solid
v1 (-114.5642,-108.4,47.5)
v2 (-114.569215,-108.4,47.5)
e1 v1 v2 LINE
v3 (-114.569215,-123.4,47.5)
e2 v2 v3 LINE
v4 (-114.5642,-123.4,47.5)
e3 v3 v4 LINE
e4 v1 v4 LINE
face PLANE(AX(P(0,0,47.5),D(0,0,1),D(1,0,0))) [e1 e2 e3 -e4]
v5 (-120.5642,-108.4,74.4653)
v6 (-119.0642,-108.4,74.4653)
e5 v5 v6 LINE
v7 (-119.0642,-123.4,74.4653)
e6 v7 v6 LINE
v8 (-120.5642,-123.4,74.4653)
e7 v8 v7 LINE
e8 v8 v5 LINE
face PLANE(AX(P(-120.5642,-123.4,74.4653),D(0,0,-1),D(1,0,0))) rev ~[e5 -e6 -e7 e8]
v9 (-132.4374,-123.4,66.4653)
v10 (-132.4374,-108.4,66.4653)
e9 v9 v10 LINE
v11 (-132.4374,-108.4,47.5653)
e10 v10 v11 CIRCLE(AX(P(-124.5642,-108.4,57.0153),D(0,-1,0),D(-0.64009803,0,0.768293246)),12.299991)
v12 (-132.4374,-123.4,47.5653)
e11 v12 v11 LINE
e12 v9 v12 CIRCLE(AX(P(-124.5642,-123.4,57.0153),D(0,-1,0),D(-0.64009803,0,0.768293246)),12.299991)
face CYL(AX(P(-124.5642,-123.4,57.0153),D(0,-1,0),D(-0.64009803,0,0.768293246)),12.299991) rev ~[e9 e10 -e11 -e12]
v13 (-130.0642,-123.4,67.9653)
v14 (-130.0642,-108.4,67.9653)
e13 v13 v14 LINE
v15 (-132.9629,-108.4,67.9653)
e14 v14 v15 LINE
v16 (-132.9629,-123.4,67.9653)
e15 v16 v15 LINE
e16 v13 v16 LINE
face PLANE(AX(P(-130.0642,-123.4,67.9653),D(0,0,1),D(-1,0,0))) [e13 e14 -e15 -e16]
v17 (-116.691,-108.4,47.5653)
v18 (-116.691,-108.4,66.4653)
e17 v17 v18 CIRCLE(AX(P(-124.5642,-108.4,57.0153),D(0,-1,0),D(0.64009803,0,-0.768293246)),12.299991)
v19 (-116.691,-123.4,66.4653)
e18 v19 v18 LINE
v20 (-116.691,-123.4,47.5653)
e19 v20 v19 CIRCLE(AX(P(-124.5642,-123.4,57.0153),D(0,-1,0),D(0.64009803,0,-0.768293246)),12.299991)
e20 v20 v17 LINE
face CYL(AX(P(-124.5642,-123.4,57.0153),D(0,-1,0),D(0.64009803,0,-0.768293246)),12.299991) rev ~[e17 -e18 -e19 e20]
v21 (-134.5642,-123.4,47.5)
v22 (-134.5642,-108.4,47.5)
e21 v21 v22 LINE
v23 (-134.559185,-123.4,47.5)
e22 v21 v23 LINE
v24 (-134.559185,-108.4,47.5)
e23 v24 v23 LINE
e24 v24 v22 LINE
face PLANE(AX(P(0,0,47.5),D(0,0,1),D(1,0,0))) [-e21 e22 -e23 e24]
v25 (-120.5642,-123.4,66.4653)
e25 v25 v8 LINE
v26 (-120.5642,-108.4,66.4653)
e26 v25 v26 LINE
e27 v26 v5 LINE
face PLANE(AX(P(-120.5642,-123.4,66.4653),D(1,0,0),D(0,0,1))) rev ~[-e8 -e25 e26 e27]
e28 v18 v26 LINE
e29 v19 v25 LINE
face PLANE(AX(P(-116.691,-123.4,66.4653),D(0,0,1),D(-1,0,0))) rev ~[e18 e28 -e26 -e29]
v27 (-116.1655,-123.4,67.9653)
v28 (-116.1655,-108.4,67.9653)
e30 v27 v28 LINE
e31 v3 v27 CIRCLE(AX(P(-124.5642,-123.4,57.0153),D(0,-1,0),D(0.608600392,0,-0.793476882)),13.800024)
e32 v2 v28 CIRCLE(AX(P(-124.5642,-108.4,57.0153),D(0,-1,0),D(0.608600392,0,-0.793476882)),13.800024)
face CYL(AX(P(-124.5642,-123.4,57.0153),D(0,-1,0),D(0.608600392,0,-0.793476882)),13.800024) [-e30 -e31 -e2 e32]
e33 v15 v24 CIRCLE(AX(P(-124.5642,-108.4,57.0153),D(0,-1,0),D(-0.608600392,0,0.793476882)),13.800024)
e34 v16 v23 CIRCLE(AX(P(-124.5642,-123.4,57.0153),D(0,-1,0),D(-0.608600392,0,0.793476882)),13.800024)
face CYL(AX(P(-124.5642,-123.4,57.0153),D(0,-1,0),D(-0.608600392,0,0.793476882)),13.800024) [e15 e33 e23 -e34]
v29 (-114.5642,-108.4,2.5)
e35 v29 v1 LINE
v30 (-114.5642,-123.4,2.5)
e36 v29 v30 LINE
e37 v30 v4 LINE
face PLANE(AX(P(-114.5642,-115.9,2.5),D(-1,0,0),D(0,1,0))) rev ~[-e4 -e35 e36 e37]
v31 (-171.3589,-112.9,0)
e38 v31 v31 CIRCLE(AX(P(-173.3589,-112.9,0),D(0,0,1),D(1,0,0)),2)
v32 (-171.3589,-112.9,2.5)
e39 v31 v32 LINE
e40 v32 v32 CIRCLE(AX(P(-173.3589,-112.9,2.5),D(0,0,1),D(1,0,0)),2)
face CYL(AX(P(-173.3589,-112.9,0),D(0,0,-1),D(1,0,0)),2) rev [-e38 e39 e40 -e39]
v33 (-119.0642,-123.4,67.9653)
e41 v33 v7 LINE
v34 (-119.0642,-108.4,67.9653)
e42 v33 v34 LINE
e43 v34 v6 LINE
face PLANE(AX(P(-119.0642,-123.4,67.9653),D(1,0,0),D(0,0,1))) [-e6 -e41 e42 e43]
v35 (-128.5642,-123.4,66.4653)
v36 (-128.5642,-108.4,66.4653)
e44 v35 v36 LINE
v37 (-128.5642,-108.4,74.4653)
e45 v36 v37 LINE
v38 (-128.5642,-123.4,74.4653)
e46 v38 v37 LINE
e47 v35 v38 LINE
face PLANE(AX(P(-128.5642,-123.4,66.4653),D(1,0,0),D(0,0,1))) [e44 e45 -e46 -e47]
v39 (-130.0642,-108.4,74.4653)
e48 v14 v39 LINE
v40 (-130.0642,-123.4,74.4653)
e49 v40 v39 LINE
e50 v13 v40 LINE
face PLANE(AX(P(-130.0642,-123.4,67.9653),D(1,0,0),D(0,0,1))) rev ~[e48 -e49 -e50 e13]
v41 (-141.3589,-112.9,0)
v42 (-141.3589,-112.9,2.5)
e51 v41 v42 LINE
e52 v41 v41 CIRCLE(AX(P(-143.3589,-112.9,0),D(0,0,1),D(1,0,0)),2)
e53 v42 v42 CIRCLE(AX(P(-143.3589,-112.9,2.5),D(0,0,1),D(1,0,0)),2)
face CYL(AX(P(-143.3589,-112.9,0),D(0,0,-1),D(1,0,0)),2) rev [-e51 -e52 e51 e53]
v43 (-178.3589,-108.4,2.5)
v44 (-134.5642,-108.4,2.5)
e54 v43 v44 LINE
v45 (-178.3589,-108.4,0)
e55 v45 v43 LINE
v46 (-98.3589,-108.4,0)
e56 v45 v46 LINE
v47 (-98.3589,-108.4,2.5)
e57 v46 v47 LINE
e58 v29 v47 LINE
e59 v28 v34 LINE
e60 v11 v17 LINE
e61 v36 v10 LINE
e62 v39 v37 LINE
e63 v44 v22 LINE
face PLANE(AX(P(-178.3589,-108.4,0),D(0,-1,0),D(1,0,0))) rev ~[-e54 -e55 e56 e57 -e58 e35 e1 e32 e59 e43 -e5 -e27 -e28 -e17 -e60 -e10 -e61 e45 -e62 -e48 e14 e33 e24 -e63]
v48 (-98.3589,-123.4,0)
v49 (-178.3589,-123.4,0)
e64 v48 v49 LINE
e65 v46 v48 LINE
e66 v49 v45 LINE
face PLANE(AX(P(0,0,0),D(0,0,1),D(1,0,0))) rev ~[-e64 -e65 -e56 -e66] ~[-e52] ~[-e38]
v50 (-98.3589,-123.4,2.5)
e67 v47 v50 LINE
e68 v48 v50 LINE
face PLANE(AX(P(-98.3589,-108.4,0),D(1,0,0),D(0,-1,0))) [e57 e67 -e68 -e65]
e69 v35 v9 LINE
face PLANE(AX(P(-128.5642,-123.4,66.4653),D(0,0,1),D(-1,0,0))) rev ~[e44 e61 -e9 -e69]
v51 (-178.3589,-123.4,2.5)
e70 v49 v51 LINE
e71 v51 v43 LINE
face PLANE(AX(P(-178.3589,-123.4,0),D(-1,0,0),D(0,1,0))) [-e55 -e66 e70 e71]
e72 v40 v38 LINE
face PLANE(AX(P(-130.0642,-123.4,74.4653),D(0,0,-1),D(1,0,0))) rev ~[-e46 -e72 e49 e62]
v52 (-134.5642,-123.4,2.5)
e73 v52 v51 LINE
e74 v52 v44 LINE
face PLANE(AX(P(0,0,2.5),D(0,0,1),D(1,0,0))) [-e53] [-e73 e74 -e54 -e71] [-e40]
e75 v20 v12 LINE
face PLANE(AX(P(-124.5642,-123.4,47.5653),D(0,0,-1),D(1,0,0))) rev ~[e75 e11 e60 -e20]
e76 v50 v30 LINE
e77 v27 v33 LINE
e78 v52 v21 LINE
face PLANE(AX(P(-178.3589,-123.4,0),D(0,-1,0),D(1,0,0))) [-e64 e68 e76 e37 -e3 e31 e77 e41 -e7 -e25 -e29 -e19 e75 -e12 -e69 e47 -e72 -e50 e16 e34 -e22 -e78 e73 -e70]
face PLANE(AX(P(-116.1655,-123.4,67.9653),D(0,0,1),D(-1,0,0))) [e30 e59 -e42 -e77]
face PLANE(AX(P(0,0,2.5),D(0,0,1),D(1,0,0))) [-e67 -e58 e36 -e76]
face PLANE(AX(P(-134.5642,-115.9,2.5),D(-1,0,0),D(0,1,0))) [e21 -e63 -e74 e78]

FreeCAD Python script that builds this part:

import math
import FreeCAD as App
import Part
import Sketcher

V = App.Vector

doc = App.newDocument("Part")
params = doc.addObject("Spreadsheet::Sheet", "Params")
for row, (alias, value) in enumerate([
    ("sketch1_diameter", "4 mm"),
    ("sketch1_width", "80 mm"),
    ("sketch1_height", "15 mm"),
    ("pad1_length", "2.5 mm"),
    ("sketch2_width", "20 mm"),
    ("sketch2_height", "15 mm"),
    ("pad2_length", "45 mm"),
    ("sketch3_height", "8 mm"),
    ("sketch3_width", "1.5 mm"),
    ("sketch3_radius", "12.3 mm"),
    ("sketch3_radius2", "13.8 mm"),
    ("pad3_length", "15 mm"),
], start=1):
    params.set(f"A{row}", alias)
    params.set(f"B{row}", "=" + value)
    params.setAlias(f"B{row}", alias)

body = doc.addObject("PartDesign::Body", "Body")

sketch1 = doc.addObject("Sketcher::SketchObject", "Sketch")
body.addObject(sketch1)
sketch1.AttachmentSupport = (doc.XY_Plane, [""])
sketch1.MapMode = "FlatFace"
sketch1.addGeometry([
    Part.LineSegment(V(-98.4, -108.4, 0), V(-178.4, -108.4, 0)),
    Part.LineSegment(V(-178.4, -108.4, 0), V(-178.4, -123.4, 0)),
    Part.LineSegment(V(-178.4, -123.4, 0), V(-98.4, -123.4, 0)),
    Part.LineSegment(V(-98.4, -123.4, 0), V(-98.4, -108.4, 0)),
    Part.Circle(V(-173.4, -112.9, 0), V(0, 0, 1), 2),
    Part.Circle(V(-143.4, -112.9, 0), V(0, 0, 1), 2),
], False)
sketch1.addConstraint([
    Sketcher.Constraint("Coincident", 0, 2, 1, 1),
    Sketcher.Constraint("Coincident", 1, 2, 2, 1),
    Sketcher.Constraint("Coincident", 2, 2, 3, 1),
    Sketcher.Constraint("Coincident", 3, 2, 0, 1),
    Sketcher.Constraint("Horizontal", 0),
    Sketcher.Constraint("Vertical", 1),
    Sketcher.Constraint("Horizontal", 2),
    Sketcher.Constraint("Vertical", 3),
    Sketcher.Constraint("Equal", 4, 5),
    Sketcher.Constraint("Horizontal", 4, 3, 5, 3),
    Sketcher.Constraint("Diameter", 4, 4.0),
    Sketcher.Constraint("DistanceX", 0, 2, 0, 1, 80.0),
    Sketcher.Constraint("DistanceY", 1, 2, 1, 1, 15.0),
    Sketcher.Constraint("DistanceX", 0, 2, 4, 3, 5.0),
    Sketcher.Constraint("DistanceY", 4, 3, 0, 2, 4.5),
    Sketcher.Constraint("DistanceX", 4, 3, 5, 3, 30.0),
    Sketcher.Constraint("DistanceY", 4, 3, -1, 1, 112.9),
    Sketcher.Constraint("DistanceX", 4, 3, -1, 1, 173.359),
])
sketch1.setExpression("Constraints[10]", "Params.sketch1_diameter")
sketch1.setExpression("Constraints[11]", "Params.sketch1_width")
sketch1.setExpression("Constraints[12]", "Params.sketch1_height")
pad1 = doc.addObject("PartDesign::Pad", "Pad")
body.addObject(pad1)
pad1.Profile = sketch1
pad1.setExpression("Length", "Params.pad1_length")

sketch2 = doc.addObject("Sketcher::SketchObject", "Sketch001")
body.addObject(sketch2)
sketch2.AttachmentSupport = (doc.XY_Plane, [""])
sketch2.MapMode = "FlatFace"
sketch2.AttachmentOffset = App.Placement(V(0, 0, 2.5), App.Rotation())
sketch2.addGeometry([
    Part.LineSegment(V(-135, -108, 0), V(-135, -123, 0)),
    Part.LineSegment(V(-135, -123, 0), V(-115, -123, 0)),
    Part.LineSegment(V(-115, -123, 0), V(-115, -108, 0)),
    Part.LineSegment(V(-115, -108, 0), V(-135, -108, 0)),
], False)
sketch2.addConstraint([
    Sketcher.Constraint("Coincident", 0, 2, 1, 1),
    Sketcher.Constraint("Coincident", 1, 2, 2, 1),
    Sketcher.Constraint("Coincident", 2, 2, 3, 1),
    Sketcher.Constraint("Coincident", 3, 2, 0, 1),
    Sketcher.Constraint("Vertical", 0),
    Sketcher.Constraint("Horizontal", 1),
    Sketcher.Constraint("Vertical", 2),
    Sketcher.Constraint("Horizontal", 3),
    Sketcher.Constraint("DistanceX", 1, 1, 1, 2, 20.0),
    Sketcher.Constraint("DistanceY", 0, 2, 0, 1, 15.0),
    Sketcher.Constraint("DistanceY", 0, 2, -1, 1, 123.4),
    Sketcher.Constraint("DistanceX", 0, 2, -1, 1, 134.5642),
])
sketch2.setExpression("Constraints[8]", "Params.sketch2_width")
sketch2.setExpression("Constraints[9]", "Params.sketch2_height")
pad2 = doc.addObject("PartDesign::Pad", "Pad001")
body.addObject(pad2)
pad2.Profile = sketch2
pad2.setExpression("Length", "Params.pad2_length")

sketch3 = doc.addObject("Sketcher::SketchObject", "Sketch002")
body.addObject(sketch3)
sketch3.AttachmentSupport = (doc.XZ_Plane, [""])
sketch3.MapMode = "FlatFace"
sketch3.AttachmentOffset = App.Placement(V(0, 0, 123.4), App.Rotation())
sketch3.addGeometry([
    Part.LineSegment(V(-120.6, 66.5, 0), V(-116.7, 66.5, 0)),
    Part.ArcOfCircle(Part.Circle(V(-124.6, 57, 0), V(0, 0, 1), 12.3), math.radians(-50), math.radians(50)),
    Part.LineSegment(V(-116.7, 47.6, 0), V(-132.4, 47.6, 0)),
    Part.ArcOfCircle(Part.Circle(V(-124.6, 57, 0), V(0, 0, 1), 12.3), math.radians(130), math.radians(230)),
    Part.LineSegment(V(-132.4, 66.5, 0), V(-128.6, 66.5, 0)),
    Part.LineSegment(V(-128.6, 66.5, 0), V(-128.6, 74.5, 0)),
    Part.LineSegment(V(-128.6, 74.5, 0), V(-130.1, 74.5, 0)),
    Part.LineSegment(V(-130.1, 74.5, 0), V(-130.1, 68, 0)),
    Part.LineSegment(V(-130.1, 68, 0), V(-133, 68, 0)),
    Part.ArcOfCircle(Part.Circle(V(-124.6, 57, 0), V(0, 0, 1), 13.8), math.radians(127), math.radians(233)),
    Part.LineSegment(V(-133, 46.1, 0), V(-116.2, 46.1, 0)),
    Part.ArcOfCircle(Part.Circle(V(-124.6, 57, 0), V(0, 0, 1), 13.8), math.radians(-53), math.radians(53)),
    Part.LineSegment(V(-116.2, 68, 0), V(-119.1, 68, 0)),
    Part.LineSegment(V(-119.1, 68, 0), V(-119.1, 74.5, 0)),
    Part.LineSegment(V(-119.1, 74.5, 0), V(-120.6, 74.5, 0)),
    Part.LineSegment(V(-120.6, 74.5, 0), V(-120.6, 66.5, 0)),
], False)
sketch3.addConstraint([
    Sketcher.Constraint("Coincident", 0, 2, 1, 2),
    Sketcher.Constraint("Coincident", 1, 1, 2, 1),
    Sketcher.Constraint("Coincident", 2, 2, 3, 2),
    Sketcher.Constraint("Coincident", 3, 1, 4, 1),
    Sketcher.Constraint("Coincident", 4, 2, 5, 1),
    Sketcher.Constraint("Coincident", 5, 2, 6, 1),
    Sketcher.Constraint("Coincident", 6, 2, 7, 1),
    Sketcher.Constraint("Coincident", 7, 2, 8, 1),
    Sketcher.Constraint("Coincident", 8, 2, 9, 1),
    Sketcher.Constraint("Coincident", 9, 2, 10, 1),
    Sketcher.Constraint("Coincident", 10, 2, 11, 1),
    Sketcher.Constraint("Coincident", 11, 2, 12, 1),
    Sketcher.Constraint("Coincident", 12, 2, 13, 1),
    Sketcher.Constraint("Coincident", 13, 2, 14, 1),
    Sketcher.Constraint("Coincident", 14, 2, 15, 1),
    Sketcher.Constraint("Coincident", 15, 2, 0, 1),
    Sketcher.Constraint("Horizontal", 0),
    Sketcher.Constraint("Horizontal", 2),
    Sketcher.Constraint("Horizontal", 4),
    Sketcher.Constraint("Vertical", 5),
    Sketcher.Constraint("Horizontal", 6),
    Sketcher.Constraint("Vertical", 7),
    Sketcher.Constraint("Horizontal", 8),
    Sketcher.Constraint("Horizontal", 10),
    Sketcher.Constraint("Horizontal", 12),
    Sketcher.Constraint("Vertical", 13),
    Sketcher.Constraint("Horizontal", 14),
    Sketcher.Constraint("Vertical", 15),
    Sketcher.Constraint("Coincident", 3, 3, 1, 3),
    Sketcher.Constraint("Coincident", 9, 3, 1, 3),
    Sketcher.Constraint("Coincident", 11, 3, 1, 3),
    Sketcher.Constraint("Equal", 1, 3),
    Sketcher.Constraint("Equal", 9, 11),
    Sketcher.Constraint("Horizontal", 0, 2, 3, 1),
    Sketcher.Constraint("Horizontal", 8, 2, 11, 2),
    Sketcher.Constraint("Horizontal", 6, 2, 13, 2),
    Sketcher.Constraint("Vertical", 0, 2, 1, 1),
    Sketcher.Constraint("Vertical", 8, 2, 9, 2),
    Sketcher.Constraint("Equal", 0, 4),
    Sketcher.Constraint("Equal", 8, 12),
    Sketcher.Constraint("DistanceY", 5, 1, 5, 2, 8.0),
    Sketcher.Constraint("DistanceX", 6, 2, 6, 1, 1.5),
    Sketcher.Constraint("DistanceX", 4, 2, 1, 3, 4.0),
    Sketcher.Constraint("Radius", 1, 12.3),
    Sketcher.Constraint("Radius", 9, 13.8),
    Sketcher.Constraint("DistanceY", 4, 2, 7, 2, 1.5),
    Sketcher.Constraint("DistanceY", 1, 1, 0, 2, 18.9),
    Sketcher.Constraint("DistanceX", 0, 2, -1, 1, 116.691),
    Sketcher.Constraint("DistanceY", -1, 1, 1, 3, 57.0153),
])
sketch3.setExpression("Constraints[40]", "Params.sketch3_height")
sketch3.setExpression("Constraints[41]", "Params.sketch3_width")
sketch3.setExpression("Constraints[43]", "Params.sketch3_radius")
sketch3.setExpression("Constraints[44]", "Params.sketch3_radius2")
pad3 = doc.addObject("PartDesign::Pad", "Pad002")
body.addObject(pad3)
pad3.Profile = sketch3
pad3.setExpression("Length", "Params.pad3_length")
pad3.Reversed = True

doc.recompute()
